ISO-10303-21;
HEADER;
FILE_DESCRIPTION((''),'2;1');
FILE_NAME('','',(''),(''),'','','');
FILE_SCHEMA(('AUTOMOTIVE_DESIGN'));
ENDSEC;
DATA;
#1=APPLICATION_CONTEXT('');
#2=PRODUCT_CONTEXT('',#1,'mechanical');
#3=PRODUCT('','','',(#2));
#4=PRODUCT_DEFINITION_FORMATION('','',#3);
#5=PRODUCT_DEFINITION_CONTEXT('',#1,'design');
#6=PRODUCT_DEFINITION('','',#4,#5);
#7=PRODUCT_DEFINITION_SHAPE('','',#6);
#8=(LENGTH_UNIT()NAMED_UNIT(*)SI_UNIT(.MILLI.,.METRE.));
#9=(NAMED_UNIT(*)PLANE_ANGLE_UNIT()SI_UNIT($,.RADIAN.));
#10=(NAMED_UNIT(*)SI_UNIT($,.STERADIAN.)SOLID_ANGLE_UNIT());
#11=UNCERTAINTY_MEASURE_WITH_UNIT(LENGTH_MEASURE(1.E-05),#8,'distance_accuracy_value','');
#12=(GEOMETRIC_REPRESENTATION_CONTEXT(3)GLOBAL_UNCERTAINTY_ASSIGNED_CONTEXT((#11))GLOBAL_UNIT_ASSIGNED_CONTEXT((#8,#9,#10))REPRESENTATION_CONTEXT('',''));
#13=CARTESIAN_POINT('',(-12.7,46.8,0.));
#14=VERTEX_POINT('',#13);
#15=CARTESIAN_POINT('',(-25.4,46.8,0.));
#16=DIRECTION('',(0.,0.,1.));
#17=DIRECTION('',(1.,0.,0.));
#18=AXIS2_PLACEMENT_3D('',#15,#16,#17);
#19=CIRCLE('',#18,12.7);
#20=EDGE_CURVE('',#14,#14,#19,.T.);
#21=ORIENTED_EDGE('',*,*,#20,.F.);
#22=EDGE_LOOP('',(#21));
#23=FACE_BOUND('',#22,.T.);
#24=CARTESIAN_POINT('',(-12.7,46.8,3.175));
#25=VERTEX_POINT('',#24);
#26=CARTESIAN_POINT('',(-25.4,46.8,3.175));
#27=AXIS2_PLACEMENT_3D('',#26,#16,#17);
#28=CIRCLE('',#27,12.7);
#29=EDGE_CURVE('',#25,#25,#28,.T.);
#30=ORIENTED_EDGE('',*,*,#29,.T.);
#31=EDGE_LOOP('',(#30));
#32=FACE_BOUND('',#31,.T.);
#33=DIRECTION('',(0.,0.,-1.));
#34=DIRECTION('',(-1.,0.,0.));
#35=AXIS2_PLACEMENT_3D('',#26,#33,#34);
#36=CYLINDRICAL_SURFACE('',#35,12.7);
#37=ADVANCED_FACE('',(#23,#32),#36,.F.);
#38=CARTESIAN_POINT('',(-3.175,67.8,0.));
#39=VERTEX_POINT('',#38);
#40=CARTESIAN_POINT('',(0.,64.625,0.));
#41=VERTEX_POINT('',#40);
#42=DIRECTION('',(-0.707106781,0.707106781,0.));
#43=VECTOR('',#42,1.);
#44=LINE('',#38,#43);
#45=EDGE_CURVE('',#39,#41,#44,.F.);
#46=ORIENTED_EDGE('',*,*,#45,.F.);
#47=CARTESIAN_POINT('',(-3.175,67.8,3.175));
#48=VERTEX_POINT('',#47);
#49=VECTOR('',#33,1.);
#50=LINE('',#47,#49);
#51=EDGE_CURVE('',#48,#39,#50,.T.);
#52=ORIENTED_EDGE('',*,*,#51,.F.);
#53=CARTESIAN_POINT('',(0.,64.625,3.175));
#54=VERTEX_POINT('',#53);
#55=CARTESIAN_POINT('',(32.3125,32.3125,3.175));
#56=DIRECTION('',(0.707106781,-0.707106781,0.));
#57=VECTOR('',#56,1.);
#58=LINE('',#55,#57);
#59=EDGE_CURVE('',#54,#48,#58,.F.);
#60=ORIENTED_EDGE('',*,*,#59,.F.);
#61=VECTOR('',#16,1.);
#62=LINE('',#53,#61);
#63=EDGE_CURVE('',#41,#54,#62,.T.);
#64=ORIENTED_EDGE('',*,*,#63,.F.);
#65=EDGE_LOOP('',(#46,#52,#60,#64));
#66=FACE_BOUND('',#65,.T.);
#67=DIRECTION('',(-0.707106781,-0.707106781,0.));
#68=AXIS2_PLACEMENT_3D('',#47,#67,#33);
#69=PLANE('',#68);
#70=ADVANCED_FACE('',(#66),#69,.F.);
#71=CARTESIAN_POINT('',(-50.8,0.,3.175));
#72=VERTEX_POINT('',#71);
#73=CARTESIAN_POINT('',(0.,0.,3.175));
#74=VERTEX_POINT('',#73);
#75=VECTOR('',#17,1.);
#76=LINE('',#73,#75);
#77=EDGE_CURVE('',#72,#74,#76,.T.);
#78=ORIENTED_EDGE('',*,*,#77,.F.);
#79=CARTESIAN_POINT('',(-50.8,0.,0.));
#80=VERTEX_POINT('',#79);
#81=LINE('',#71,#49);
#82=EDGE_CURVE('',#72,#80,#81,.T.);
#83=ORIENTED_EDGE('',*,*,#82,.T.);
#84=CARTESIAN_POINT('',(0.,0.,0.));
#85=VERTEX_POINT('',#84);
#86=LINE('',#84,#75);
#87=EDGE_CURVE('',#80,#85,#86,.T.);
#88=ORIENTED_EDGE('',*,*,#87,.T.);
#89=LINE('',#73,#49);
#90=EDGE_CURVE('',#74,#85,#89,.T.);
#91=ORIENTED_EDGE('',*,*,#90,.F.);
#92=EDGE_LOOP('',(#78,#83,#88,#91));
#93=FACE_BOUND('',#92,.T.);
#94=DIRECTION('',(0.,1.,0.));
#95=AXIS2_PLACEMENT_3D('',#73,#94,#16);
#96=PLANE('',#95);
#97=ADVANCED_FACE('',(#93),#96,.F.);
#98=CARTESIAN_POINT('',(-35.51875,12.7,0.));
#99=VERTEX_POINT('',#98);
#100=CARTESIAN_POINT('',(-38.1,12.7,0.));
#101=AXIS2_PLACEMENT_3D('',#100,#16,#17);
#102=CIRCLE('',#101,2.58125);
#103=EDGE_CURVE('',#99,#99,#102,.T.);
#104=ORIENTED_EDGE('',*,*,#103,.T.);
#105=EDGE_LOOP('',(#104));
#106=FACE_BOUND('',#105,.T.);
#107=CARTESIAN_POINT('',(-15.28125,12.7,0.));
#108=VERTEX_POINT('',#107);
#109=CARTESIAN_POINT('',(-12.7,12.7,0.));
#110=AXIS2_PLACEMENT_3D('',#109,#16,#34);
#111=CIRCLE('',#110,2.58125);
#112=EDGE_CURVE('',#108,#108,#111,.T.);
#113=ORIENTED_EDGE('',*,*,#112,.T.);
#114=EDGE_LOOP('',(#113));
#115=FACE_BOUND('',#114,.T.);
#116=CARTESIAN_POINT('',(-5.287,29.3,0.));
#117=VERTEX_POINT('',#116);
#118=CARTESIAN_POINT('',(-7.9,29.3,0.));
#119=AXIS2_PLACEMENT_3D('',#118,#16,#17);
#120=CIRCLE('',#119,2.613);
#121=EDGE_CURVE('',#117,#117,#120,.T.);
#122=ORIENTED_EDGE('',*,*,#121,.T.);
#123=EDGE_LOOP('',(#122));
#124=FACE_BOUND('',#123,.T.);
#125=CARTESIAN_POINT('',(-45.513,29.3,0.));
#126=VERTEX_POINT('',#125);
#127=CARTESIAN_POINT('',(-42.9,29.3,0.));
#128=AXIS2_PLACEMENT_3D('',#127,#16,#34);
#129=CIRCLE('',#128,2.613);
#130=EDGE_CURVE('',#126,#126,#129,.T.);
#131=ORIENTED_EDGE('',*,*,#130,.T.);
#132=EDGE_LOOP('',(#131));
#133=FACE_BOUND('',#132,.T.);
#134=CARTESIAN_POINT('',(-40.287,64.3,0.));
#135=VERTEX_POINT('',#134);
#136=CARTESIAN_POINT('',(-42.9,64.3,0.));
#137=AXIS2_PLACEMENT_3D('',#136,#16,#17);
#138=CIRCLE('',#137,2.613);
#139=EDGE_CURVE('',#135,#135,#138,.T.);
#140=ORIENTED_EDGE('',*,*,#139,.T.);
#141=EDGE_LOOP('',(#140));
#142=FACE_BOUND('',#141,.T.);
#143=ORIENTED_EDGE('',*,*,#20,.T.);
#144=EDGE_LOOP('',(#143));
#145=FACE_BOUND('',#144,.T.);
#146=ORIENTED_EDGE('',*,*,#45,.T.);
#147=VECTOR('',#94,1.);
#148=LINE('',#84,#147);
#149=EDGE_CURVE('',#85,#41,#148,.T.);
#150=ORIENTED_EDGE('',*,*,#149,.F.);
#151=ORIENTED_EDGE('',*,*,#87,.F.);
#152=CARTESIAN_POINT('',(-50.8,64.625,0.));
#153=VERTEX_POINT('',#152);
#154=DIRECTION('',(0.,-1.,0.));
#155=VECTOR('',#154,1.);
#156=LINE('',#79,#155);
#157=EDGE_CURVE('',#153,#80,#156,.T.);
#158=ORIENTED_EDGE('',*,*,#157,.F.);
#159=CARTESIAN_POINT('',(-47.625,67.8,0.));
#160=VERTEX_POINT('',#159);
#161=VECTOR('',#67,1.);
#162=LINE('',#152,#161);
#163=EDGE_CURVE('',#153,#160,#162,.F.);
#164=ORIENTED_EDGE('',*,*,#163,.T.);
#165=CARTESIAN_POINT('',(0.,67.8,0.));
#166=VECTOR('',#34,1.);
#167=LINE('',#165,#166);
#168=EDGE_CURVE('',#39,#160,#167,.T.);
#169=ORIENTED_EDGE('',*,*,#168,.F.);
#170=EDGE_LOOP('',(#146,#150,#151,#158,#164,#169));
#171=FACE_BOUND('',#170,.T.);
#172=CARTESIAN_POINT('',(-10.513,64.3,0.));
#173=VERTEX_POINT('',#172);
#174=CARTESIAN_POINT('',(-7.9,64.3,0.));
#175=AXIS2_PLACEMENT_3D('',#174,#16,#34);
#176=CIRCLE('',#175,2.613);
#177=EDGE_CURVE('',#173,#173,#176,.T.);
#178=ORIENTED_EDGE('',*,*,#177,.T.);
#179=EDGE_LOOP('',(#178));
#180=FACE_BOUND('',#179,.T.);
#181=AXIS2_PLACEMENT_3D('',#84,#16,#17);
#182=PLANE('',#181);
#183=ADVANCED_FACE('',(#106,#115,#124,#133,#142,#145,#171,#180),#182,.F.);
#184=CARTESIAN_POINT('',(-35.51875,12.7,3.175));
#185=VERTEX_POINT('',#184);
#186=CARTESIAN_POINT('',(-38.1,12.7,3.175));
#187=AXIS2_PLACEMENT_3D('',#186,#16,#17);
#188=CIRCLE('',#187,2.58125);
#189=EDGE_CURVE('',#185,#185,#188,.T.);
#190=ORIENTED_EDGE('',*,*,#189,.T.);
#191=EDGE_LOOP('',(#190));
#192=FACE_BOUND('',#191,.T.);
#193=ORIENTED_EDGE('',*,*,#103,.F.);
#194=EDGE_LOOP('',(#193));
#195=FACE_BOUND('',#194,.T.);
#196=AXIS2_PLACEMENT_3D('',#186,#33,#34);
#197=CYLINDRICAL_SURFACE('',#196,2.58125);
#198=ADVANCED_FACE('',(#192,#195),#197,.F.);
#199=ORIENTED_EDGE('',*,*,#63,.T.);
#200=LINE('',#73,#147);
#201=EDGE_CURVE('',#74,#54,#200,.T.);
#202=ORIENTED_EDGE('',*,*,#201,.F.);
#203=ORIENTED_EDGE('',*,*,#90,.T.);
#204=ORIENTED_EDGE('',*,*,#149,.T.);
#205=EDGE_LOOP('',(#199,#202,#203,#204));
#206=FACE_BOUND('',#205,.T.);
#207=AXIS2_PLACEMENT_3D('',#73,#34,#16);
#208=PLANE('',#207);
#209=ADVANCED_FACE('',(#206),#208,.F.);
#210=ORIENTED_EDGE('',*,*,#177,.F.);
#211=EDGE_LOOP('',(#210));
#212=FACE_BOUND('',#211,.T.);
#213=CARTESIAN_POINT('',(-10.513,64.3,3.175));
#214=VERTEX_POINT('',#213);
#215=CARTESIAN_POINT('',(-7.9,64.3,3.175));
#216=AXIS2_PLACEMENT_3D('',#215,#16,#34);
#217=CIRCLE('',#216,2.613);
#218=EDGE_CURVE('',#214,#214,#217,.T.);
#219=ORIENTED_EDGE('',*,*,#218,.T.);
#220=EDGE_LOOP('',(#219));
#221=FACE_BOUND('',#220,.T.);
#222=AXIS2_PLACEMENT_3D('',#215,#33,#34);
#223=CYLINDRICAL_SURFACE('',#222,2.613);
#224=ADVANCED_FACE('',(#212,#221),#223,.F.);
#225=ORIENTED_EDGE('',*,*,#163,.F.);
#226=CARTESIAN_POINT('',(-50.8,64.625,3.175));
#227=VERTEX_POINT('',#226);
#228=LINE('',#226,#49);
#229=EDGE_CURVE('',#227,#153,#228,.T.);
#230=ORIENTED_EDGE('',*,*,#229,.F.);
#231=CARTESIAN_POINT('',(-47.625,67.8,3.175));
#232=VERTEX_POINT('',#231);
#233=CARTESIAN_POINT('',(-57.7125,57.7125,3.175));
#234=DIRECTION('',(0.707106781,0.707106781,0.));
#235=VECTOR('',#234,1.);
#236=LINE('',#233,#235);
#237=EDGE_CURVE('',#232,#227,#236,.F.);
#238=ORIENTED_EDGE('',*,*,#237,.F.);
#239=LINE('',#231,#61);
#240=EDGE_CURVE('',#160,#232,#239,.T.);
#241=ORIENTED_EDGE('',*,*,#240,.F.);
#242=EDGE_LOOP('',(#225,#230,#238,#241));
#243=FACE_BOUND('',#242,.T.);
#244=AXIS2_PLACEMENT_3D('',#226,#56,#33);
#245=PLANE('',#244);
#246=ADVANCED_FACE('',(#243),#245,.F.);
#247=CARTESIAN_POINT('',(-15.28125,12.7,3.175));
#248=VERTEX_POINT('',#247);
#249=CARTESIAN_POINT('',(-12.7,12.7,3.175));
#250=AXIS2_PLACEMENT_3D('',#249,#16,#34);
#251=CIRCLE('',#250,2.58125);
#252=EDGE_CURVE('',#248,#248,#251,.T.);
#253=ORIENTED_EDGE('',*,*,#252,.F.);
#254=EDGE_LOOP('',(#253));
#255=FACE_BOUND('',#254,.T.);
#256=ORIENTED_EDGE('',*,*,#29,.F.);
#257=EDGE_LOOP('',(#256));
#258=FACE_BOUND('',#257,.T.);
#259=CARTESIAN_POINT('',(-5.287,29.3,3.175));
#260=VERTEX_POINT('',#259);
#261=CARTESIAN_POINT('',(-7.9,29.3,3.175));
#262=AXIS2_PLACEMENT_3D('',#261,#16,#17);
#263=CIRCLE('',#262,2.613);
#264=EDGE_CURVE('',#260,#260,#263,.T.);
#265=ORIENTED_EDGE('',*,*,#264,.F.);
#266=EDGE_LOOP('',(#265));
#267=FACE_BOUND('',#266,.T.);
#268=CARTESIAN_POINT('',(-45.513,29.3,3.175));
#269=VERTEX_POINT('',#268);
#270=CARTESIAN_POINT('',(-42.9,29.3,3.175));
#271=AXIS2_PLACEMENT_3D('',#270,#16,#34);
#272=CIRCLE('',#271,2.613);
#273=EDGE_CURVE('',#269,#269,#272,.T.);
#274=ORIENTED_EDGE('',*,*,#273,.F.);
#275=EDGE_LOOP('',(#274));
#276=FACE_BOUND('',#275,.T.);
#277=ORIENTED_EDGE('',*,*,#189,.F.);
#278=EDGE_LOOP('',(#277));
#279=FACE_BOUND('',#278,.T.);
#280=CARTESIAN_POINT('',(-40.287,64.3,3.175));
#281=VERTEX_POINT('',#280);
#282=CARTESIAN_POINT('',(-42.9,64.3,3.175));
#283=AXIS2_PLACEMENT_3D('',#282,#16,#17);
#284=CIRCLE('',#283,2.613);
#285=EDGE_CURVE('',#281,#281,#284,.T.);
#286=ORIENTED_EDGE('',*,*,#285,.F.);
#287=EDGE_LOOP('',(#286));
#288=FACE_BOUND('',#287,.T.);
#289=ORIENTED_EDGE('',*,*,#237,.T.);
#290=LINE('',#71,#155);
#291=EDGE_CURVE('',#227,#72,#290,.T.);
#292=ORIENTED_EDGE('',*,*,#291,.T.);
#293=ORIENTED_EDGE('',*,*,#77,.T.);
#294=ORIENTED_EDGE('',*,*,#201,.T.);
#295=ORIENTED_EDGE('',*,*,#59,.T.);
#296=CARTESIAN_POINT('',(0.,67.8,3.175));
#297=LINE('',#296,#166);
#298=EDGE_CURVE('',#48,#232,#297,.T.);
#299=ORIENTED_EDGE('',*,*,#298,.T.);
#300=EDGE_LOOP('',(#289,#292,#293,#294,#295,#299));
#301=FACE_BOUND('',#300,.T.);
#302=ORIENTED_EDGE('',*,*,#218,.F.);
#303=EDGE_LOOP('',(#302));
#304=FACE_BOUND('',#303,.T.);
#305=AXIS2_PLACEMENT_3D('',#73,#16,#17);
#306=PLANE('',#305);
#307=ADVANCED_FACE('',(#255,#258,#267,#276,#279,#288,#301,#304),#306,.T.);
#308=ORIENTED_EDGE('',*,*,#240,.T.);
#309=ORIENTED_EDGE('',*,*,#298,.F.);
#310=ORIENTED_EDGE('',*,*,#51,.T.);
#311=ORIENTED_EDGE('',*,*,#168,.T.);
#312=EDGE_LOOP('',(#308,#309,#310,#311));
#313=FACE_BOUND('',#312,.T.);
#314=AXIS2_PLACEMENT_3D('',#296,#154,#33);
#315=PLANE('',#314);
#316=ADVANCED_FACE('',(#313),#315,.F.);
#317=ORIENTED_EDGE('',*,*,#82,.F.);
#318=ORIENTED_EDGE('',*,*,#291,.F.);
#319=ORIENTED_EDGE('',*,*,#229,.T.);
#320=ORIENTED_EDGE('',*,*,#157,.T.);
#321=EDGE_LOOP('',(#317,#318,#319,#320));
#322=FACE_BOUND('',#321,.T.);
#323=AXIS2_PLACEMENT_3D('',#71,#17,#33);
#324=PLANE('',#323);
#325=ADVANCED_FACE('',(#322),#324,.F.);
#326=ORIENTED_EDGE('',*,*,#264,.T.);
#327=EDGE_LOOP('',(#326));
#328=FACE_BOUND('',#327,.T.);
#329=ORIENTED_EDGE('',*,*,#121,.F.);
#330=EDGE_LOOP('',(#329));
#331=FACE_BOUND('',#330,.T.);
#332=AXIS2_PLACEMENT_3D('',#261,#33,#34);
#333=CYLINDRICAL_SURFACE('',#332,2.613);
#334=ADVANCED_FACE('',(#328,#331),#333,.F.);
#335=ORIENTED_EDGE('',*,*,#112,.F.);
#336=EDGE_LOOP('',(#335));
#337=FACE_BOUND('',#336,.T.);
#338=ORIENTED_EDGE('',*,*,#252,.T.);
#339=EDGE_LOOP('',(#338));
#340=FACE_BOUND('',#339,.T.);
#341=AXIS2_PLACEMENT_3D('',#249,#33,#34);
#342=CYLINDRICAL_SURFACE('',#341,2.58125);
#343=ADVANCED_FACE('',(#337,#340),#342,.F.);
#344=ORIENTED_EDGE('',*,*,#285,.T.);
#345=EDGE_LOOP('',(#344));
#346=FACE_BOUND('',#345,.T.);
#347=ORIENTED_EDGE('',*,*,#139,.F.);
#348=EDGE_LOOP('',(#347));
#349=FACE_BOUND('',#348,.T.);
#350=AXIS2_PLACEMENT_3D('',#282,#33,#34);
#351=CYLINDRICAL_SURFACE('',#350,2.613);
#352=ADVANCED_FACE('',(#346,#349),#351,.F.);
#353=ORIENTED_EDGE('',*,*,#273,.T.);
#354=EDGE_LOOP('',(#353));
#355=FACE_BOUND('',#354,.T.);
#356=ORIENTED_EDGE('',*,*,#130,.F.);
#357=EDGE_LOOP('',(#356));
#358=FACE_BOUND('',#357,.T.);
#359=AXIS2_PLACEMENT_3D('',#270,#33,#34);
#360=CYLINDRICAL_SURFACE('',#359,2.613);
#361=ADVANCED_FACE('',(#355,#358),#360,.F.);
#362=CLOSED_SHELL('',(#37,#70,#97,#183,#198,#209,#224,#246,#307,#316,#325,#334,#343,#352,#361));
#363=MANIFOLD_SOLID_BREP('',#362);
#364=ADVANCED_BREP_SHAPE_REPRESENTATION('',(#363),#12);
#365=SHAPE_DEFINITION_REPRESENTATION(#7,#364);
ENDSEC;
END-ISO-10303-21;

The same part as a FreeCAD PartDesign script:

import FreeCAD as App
import Part
import Sketcher

V = App.Vector
Q = App.Units.Quantity


def edges_at(feature, points):
    """Names of the edges that pass closest to the given points."""
    edges = feature.Shape.Edges
    near = lambda p: min(range(len(edges)), key=lambda i: edges[i].distToShape(Part.Vertex(*p))[0])
    return sorted({f"Edge{near(p) + 1}" for p in points})


def add_polygon(sketch, points):
    """Adds a closed chain of lines whose ends are joined by coincident constraints."""
    first, n = sketch.GeometryCount, len(points)
    for a, b in zip(points, points[1:] + points[:1]):
        sketch.addGeometry(Part.LineSegment(App.Vector(*a, 0), App.Vector(*b, 0)), False)
    for i in range(n):
        sketch.addConstraint(Sketcher.Constraint("Coincident", first + i, 2, first + (i + 1) % n, 1))

doc = App.newDocument("Part")
body = doc.addObject("PartDesign::Body", "Body")

# Sketch on XY plane
sketch1 = body.newObject("Sketcher::SketchObject", "Sketch")
sketch1.AttachmentSupport = (doc.getObject("XY_Plane"), [""])
sketch1.MapMode = "FlatFace"
add_polygon(sketch1, [(-50.8, 67.8), (-50.8, 0), (0, 0), (0, 67.8)])  # lines 0-3
sketch1.addGeometry(Part.Circle(V(-38.1, 12.7, 0), V(0, 0, 1), 2.6), False)  # 4
sketch1.addGeometry(Part.Circle(V(-42.9, 29.3, 0), V(0, 0, 1), 2.6), False)  # 5
sketch1.addGeometry(Part.Circle(V(-12.7, 12.7, 0), V(0, 0, 1), 2.6), False)  # 6
sketch1.addGeometry(Part.Circle(V(-7.9, 29.3, 0), V(0, 0, 1), 2.6), False)  # 7
sketch1.addGeometry(Part.Circle(V(-42.9, 64.3, 0), V(0, 0, 1), 2.6), False)  # 8
sketch1.addGeometry(Part.Circle(V(-25.4, 46.8, 0), V(0, 0, 1), 12.7), False)  # 9
sketch1.addGeometry(Part.Circle(V(-7.9, 64.3, 0), V(0, 0, 1), 2.6), False)  # 10
sketch1.addConstraint([
    Sketcher.Constraint("Vertical", 0),
    Sketcher.Constraint("Horizontal", 1),
    Sketcher.Constraint("Vertical", 2),
    Sketcher.Constraint("Horizontal", 3),
    Sketcher.Constraint("Coincident", 1, 2, -1, 1),
    Sketcher.Constraint("Equal", 4, 6),
    Sketcher.Constraint("Equal", 5, 7),
    Sketcher.Constraint("Equal", 7, 8),
    Sketcher.Constraint("Equal", 8, 10),
    Sketcher.Constraint("Horizontal", 4, 3, 6, 3),
    Sketcher.Constraint("Horizontal", 5, 3, 7, 3),
    Sketcher.Constraint("Horizontal", 8, 3, 10, 3),
    Sketcher.Constraint("Vertical", 5, 3, 8, 3),
    Sketcher.Constraint("Vertical", 7, 3, 10, 3),
    Sketcher.Constraint("Diameter", 9, Q("1 in")),
    Sketcher.Constraint("DistanceX", 1, 1, 1, 2, Q("2 in")),
    Sketcher.Constraint("DistanceX", 9, 3, -1, 1, Q("1 in")),
    Sketcher.Constraint("DistanceX", 4, 3, 6, 3, Q("1 in")),
    Sketcher.Constraint("DistanceX", 4, 3, -1, 1, Q("1.5 in")),
    Sketcher.Constraint("DistanceY", -1, 1, 4, 3, Q("0.5 in")),
    Sketcher.Constraint("Diameter", 4, 5.1625),
    Sketcher.Constraint("Diameter", 5, 5.226),
    Sketcher.Constraint("DistanceY", 0, 2, 0, 1, 67.8),
    Sketcher.Constraint("DistanceX", 5, 3, -1, 1, 42.9),
    Sketcher.Constraint("DistanceY", -1, 1, 5, 3, 29.3),
    Sketcher.Constraint("DistanceX", 7, 3, -1, 1, 7.9),
    Sketcher.Constraint("DistanceY", -1, 1, 8, 3, 64.3),
    Sketcher.Constraint("DistanceY", -1, 1, 9, 3, 46.8),
])
pad1 = body.newObject("PartDesign::Pad", "Pad")
pad1.Profile = sketch1
pad1.Length = Q("0.125 in")
doc.recompute()

chamfer = body.newObject("PartDesign::Chamfer", "Chamfer")
chamfer.Base = (pad1, edges_at(pad1, [(-50.8, 67.8, 1.587), (0, 67.8, 1.587)]))
chamfer.Size = Q("0.125 in")

doc.recompute()
